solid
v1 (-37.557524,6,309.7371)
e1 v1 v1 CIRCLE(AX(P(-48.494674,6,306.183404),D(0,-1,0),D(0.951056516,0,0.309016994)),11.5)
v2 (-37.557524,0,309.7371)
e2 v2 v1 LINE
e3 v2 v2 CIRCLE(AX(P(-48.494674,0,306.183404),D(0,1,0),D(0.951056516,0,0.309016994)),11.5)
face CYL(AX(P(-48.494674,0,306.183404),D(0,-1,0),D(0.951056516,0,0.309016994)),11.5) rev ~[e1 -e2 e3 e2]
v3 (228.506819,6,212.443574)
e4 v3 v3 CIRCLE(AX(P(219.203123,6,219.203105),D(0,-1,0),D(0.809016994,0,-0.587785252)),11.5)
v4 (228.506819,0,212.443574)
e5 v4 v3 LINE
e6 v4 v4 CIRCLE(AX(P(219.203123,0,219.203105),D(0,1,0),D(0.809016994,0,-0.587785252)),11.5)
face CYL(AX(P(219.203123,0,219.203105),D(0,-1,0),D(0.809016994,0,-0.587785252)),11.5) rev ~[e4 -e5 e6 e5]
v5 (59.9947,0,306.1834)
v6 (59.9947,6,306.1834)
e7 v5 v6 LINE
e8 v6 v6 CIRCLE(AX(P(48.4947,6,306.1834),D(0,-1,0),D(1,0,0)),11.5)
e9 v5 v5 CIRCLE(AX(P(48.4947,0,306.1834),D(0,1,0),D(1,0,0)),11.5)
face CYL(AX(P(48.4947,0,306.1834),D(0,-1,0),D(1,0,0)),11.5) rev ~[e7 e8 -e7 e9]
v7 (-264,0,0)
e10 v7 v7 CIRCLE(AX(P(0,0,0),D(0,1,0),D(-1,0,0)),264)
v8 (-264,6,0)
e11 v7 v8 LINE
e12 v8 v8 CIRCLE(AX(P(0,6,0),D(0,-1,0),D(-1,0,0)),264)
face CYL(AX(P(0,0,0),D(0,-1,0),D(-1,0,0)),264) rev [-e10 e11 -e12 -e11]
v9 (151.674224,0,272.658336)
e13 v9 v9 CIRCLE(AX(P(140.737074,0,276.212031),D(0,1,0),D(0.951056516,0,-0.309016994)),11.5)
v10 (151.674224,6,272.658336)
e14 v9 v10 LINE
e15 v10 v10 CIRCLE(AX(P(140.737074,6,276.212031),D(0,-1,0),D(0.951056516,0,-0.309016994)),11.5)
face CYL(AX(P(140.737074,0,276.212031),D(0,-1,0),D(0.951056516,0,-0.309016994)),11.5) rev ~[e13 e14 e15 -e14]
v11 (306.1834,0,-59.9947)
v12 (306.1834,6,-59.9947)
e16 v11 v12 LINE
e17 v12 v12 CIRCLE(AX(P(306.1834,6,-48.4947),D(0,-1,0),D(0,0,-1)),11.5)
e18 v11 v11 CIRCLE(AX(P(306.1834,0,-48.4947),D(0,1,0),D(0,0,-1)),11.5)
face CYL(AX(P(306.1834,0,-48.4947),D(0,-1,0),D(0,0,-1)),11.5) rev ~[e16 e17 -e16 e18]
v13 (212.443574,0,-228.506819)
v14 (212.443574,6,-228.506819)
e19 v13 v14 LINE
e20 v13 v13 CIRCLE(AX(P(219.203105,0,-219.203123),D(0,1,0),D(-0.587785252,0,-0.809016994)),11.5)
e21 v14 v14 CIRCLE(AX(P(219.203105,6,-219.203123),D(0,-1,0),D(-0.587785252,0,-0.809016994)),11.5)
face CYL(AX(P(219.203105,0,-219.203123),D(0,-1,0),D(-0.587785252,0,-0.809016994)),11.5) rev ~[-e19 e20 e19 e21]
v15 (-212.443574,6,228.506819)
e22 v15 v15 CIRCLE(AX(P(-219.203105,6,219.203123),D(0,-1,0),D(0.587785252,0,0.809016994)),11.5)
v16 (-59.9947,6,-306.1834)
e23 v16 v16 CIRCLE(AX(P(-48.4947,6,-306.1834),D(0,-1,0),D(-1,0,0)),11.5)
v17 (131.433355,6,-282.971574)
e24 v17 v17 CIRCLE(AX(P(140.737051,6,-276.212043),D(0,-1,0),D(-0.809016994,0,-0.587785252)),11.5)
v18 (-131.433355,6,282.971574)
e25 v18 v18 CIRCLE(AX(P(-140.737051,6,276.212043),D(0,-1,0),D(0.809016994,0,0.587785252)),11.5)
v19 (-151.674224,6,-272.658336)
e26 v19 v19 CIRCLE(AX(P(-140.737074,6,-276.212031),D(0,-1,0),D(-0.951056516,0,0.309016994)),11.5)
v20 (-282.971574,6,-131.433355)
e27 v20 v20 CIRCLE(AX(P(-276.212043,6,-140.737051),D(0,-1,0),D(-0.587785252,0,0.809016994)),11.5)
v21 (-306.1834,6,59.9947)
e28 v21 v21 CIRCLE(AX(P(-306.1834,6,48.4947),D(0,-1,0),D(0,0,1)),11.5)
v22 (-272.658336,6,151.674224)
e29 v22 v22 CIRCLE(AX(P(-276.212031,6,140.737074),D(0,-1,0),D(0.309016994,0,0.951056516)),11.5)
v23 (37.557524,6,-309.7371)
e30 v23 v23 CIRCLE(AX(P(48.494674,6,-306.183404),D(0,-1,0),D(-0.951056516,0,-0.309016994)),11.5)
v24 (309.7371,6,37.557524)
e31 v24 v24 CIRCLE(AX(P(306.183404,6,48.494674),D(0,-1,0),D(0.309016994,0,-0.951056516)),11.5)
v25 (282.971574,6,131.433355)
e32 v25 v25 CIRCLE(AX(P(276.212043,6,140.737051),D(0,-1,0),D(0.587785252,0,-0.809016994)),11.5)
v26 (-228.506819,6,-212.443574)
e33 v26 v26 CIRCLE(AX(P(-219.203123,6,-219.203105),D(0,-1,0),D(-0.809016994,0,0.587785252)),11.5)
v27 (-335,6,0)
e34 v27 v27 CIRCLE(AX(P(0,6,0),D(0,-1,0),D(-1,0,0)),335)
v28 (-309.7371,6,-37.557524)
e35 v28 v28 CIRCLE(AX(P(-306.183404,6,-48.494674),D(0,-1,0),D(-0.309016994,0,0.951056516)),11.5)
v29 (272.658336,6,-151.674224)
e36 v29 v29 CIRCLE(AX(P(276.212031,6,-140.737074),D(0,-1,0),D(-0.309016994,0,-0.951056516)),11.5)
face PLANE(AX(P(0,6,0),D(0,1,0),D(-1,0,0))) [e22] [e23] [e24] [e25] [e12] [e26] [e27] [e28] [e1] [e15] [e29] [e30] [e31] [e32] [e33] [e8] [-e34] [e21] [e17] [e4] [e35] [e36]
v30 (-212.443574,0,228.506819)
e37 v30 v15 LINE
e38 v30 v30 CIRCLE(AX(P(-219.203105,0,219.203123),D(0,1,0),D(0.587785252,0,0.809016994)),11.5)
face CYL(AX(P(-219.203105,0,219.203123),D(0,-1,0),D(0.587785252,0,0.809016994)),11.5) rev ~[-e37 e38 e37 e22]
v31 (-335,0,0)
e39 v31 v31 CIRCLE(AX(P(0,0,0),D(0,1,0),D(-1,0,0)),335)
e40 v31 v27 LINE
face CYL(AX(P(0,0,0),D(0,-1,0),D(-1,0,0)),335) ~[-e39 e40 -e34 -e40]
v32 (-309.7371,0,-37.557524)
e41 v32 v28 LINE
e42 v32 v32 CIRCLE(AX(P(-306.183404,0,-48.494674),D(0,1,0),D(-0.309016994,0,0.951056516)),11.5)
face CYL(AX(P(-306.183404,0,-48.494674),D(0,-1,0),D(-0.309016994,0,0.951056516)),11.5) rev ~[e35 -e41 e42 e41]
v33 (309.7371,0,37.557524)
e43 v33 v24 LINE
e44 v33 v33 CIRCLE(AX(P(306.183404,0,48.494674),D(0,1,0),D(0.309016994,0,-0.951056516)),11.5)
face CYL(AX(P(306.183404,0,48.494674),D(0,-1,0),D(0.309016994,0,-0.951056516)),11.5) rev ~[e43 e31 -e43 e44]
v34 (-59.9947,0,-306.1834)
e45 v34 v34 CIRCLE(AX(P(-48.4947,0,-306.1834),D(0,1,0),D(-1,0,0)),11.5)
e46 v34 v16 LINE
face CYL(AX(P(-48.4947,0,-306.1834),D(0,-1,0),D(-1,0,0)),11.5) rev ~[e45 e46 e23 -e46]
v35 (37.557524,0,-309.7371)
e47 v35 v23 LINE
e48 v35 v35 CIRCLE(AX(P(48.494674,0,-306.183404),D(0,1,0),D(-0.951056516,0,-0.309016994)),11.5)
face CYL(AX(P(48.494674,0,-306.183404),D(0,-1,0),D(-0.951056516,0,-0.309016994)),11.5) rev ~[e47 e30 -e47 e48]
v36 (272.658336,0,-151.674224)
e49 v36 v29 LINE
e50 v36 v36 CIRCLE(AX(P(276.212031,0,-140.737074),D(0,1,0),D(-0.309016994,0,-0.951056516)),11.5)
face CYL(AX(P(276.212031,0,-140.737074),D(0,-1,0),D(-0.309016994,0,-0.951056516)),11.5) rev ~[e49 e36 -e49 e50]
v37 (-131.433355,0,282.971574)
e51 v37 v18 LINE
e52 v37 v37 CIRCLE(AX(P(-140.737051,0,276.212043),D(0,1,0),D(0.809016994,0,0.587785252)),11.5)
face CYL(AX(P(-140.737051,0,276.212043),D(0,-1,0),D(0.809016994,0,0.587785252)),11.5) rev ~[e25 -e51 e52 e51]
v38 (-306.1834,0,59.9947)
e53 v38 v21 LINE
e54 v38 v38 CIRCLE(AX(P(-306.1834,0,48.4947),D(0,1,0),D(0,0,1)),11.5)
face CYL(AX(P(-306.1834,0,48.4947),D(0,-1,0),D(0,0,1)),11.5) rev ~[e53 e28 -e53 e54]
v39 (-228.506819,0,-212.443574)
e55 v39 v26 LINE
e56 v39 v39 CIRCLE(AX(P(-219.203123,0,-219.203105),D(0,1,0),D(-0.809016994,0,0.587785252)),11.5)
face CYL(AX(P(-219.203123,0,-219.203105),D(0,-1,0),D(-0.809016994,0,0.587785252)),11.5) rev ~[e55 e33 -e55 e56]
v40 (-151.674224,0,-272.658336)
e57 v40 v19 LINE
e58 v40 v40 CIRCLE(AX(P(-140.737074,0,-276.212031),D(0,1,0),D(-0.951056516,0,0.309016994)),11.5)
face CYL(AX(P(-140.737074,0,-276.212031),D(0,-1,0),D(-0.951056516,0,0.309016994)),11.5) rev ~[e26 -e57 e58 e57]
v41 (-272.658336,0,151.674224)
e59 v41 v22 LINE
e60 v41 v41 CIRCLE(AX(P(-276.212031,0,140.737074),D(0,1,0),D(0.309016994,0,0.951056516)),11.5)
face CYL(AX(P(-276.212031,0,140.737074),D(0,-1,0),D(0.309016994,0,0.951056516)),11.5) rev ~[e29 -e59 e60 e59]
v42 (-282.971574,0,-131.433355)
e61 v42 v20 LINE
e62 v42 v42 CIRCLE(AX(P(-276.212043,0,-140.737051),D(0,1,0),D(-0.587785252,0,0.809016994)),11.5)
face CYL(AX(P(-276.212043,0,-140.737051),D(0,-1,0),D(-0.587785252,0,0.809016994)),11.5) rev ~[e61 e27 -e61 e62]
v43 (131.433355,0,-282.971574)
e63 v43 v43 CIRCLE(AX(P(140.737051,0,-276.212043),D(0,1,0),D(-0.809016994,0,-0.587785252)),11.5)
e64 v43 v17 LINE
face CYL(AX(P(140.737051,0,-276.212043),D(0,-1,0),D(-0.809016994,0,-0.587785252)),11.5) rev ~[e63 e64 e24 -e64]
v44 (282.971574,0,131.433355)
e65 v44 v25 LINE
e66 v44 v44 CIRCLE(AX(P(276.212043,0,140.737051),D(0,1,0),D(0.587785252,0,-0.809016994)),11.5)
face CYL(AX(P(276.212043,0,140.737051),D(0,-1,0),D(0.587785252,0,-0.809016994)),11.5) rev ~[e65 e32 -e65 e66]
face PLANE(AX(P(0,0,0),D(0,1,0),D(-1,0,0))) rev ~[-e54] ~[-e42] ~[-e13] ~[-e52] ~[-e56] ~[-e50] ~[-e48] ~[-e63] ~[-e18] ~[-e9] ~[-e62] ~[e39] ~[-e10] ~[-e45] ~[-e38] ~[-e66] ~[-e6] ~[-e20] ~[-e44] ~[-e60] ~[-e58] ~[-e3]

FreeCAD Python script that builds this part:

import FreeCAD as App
import Part
import Sketcher
from FreeCAD import Vector
Q = App.Units.Quantity

doc = App.newDocument("Part")
params = doc.addObject("Spreadsheet::Sheet", "Params")
for row, (alias, value) in enumerate([
    ("sketch1_diameter", "670 mm"),
    ("sketch1_diameter2", "528 mm"),
    ("pad1_length", "6 mm"),
    ("sketch2_diameter", "23 mm"),
    ("pocket1_length", "6 mm"),
], start=1):
    params.set(f"A{row}", alias)
    params.set(f"B{row}", "=" + value)
    params.setAlias(f"B{row}", alias)

body = doc.addObject("PartDesign::Body", "Body")

# Sketch on XZ plane
sketch1 = body.newObject("Sketcher::SketchObject", "Sketch")
sketch1.AttachmentSupport = (doc.getObject("XZ_Plane"), [""])
sketch1.MapMode = "FlatFace"
sketch1.addGeometry([
    Part.Circle(Vector(0, 0, 0), Vector(0, 0, 1), 335),
    Part.Circle(Vector(0, 0, 0), Vector(0, 0, 1), 264),
], False)
sketch1.addConstraint([
    Sketcher.Constraint("Coincident", 0, 3, -1, 1),
    Sketcher.Constraint("Coincident", 1, 3, -1, 1),
    Sketcher.Constraint("Diameter", 0, Q("670 mm")),
    Sketcher.Constraint("Diameter", 1, Q("528 mm")),
])
sketch1.setExpression("Constraints[2]", "Params.sketch1_diameter")
sketch1.setExpression("Constraints[3]", "Params.sketch1_diameter2")
pad1 = body.newObject("PartDesign::Pad", "Pad")
pad1.Profile = sketch1
pad1.setExpression("Length", "Params.pad1_length")
pad1.Reversed = True

# Sketch on XZ plane
sketch2 = body.newObject("Sketcher::SketchObject", "Sketch001")
sketch2.AttachmentSupport = (doc.getObject("XZ_Plane"), [""])
sketch2.MapMode = "FlatFace"
sketch2.addGeometry(Part.Circle(Vector(48, 306, 0), Vector(0, 0, 1), 12), False)
sketch2.addConstraint([
    Sketcher.Constraint("Diameter", 0, Q("23 mm")),
    Sketcher.Constraint("DistanceX", -1, 1, 0, 3, Q("48.4947 mm")),
    Sketcher.Constraint("DistanceY", -1, 1, 0, 3, Q("306.1834 mm")),
])
sketch2.setExpression("Constraints[0]", "Params.sketch2_diameter")
pocket1 = body.newObject("PartDesign::Pocket", "Pocket")
pocket1.Profile = sketch2
pocket1.setExpression("Length", "Params.pocket1_length")
doc.recompute()

polarpattern = body.newObject("PartDesign::PolarPattern", "PolarPattern")
polarpattern.Originals = [pocket1]
polarpattern.Axis = (doc.getObject("Y_Axis"), [""])
polarpattern.Angle = 360
polarpattern.Occurrences = 20
body.Tip = polarpattern

doc.recompute()
